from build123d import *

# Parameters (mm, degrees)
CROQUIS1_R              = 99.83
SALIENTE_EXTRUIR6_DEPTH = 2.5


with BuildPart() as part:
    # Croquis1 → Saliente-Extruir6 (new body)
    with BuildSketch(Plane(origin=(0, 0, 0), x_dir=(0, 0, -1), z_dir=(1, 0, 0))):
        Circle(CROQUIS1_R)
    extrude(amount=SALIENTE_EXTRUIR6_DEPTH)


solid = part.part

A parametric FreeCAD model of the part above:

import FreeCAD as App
import Part
import Sketcher

V = App.Vector

doc = App.newDocument("Part")
body = doc.addObject("PartDesign::Body", "Body")

sketch1 = body.newObject("Sketcher::SketchObject", "Sketch")
sketch1.AttachmentSupport = (doc.getObject("YZ_Plane"), [""])
sketch1.MapMode = "FlatFace"
sketch1.addGeometry(Part.Circle(V(0, 0, 0), V(0, 0, 1), 100), False)
sketch1.addConstraint(Sketcher.Constraint("Coincident", 0, 3, -1, 1))
sketch1.addConstraint(Sketcher.Constraint("Diameter", 0, 199.66))
pad1 = body.newObject("PartDesign::Pad", "Pad")
pad1.Profile = sketch1
pad1.Length = 2.5

doc.recompute()
